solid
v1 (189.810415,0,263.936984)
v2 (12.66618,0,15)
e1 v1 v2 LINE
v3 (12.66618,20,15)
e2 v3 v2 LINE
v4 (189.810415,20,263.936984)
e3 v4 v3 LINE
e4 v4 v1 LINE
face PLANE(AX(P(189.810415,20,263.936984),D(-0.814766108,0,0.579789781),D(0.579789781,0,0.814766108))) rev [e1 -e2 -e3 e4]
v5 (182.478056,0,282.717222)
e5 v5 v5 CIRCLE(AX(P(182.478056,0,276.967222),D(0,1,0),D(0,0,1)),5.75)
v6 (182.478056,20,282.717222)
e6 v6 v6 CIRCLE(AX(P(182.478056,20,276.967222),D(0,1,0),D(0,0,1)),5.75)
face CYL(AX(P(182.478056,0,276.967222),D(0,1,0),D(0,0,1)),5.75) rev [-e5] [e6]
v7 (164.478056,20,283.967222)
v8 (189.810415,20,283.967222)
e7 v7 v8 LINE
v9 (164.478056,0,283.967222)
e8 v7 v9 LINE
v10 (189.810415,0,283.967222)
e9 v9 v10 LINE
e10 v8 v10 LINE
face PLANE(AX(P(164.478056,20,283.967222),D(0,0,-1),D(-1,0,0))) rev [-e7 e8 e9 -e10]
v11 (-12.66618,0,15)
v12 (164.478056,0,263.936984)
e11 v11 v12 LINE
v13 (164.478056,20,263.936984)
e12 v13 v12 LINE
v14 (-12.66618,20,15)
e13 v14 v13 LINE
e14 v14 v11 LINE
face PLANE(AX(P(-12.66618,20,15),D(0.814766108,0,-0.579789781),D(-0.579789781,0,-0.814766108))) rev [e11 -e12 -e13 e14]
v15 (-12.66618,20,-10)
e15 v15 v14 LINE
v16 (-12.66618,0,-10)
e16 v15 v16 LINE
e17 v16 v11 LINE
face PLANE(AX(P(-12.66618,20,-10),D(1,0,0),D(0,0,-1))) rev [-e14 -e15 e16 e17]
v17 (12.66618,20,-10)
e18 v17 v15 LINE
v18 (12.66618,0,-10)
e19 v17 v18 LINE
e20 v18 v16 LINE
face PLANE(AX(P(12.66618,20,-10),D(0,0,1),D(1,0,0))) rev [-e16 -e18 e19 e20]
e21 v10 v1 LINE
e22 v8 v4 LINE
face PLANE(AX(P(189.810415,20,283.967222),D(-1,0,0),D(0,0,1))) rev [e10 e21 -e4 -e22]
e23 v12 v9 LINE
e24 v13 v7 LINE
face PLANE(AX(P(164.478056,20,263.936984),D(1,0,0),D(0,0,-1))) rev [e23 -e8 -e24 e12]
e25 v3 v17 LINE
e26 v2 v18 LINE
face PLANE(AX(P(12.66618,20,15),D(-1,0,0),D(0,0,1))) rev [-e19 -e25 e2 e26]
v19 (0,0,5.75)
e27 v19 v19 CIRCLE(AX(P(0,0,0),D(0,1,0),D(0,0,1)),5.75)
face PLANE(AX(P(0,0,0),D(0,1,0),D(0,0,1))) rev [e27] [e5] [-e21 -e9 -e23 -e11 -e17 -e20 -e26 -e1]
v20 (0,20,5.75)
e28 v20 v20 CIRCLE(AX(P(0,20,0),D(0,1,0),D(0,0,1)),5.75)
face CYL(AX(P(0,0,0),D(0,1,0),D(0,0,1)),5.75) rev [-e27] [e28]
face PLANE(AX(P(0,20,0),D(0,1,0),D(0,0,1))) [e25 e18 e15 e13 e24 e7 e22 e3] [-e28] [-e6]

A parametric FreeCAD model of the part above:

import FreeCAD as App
import Part
import Sketcher
Q = App.Units.Quantity

doc = App.newDocument("Part")
params = doc.addObject("Spreadsheet::Sheet", "Params")
for row, (alias, value) in enumerate([
    ("sketch1_height", "25 mm"),
    ("pad1_length", "20 mm"),
    ("sketch2_diameter", "11.5 mm"),
], start=1):
    params.set(f"A{row}", alias)
    params.set(f"B{row}", "=" + value)
    params.setAlias(f"B{row}", alias)

body = doc.addObject("PartDesign::Body", "Body")

# Sketch on XZ plane
sketch1 = body.newObject("Sketcher::SketchObject", "Sketch")
sketch1.AttachmentSupport = (doc.getObject("XZ_Plane"), [""])
sketch1.MapMode = "FlatFace"
sketch1.addGeometry(Part.LineSegment(App.Vector(-13, -10, 0), App.Vector(-13, 15, 0)), False)
sketch1.addGeometry(Part.LineSegment(App.Vector(-13, 15, 0), App.Vector(164, 264, 0)), False)
sketch1.addGeometry(Part.LineSegment(App.Vector(164, 264, 0), App.Vector(164, 284, 0)), False)
sketch1.addGeometry(Part.LineSegment(App.Vector(164, 284, 0), App.Vector(190, 284, 0)), False)
sketch1.addGeometry(Part.LineSegment(App.Vector(190, 284, 0), App.Vector(190, 264, 0)), False)
sketch1.addGeometry(Part.LineSegment(App.Vector(190, 264, 0), App.Vector(13, 15, 0)), False)
sketch1.addGeometry(Part.LineSegment(App.Vector(13, 15, 0), App.Vector(13, -10, 0)), False)
sketch1.addGeometry(Part.LineSegment(App.Vector(13, -10, 0), App.Vector(-13, -10, 0)), False)
sketch1.addConstraint(Sketcher.Constraint("Coincident", 0, 2, 1, 1))
sketch1.addConstraint(Sketcher.Constraint("Coincident", 1, 2, 2, 1))
sketch1.addConstraint(Sketcher.Constraint("Coincident", 2, 2, 3, 1))
sketch1.addConstraint(Sketcher.Constraint("Coincident", 3, 2, 4, 1))
sketch1.addConstraint(Sketcher.Constraint("Coincident", 4, 2, 5, 1))
sketch1.addConstraint(Sketcher.Constraint("Coincident", 5, 2, 6, 1))
sketch1.addConstraint(Sketcher.Constraint("Coincident", 6, 2, 7, 1))
sketch1.addConstraint(Sketcher.Constraint("Coincident", 7, 2, 0, 1))
sketch1.addConstraint(Sketcher.Constraint("Vertical", 0))
sketch1.addConstraint(Sketcher.Constraint("Vertical", 2))
sketch1.addConstraint(Sketcher.Constraint("Horizontal", 3))
sketch1.addConstraint(Sketcher.Constraint("Vertical", 4))
sketch1.addConstraint(Sketcher.Constraint("Vertical", 6))
sketch1.addConstraint(Sketcher.Constraint("Horizontal", 7))
sketch1.addConstraint(Sketcher.Constraint("Symmetric", 0, 2, 5, 2, -2))
sketch1.addConstraint(Sketcher.Constraint("Parallel", 1, 5))
sketch1.addConstraint(Sketcher.Constraint("Horizontal", 1, 2, 4, 2))
sketch1.addConstraint(Sketcher.Constraint("DistanceY", 0, 1, 0, 2, Q("25 mm")))
sketch1.addConstraint(Sketcher.Constraint("DistanceY", -1, 1, 0, 2, Q("15 mm")))
sketch1.addConstraint(Sketcher.Constraint("DistanceX", 3, 1, 3, 2, Q("25.332359 mm")))
sketch1.addConstraint(Sketcher.Constraint("DistanceY", 2, 1, 2, 2, Q("20.030238 mm")))
sketch1.addConstraint(Sketcher.Constraint("DistanceY", -1, 1, 2, 2, Q("283.967222 mm")))
sketch1.addConstraint(Sketcher.Constraint("Distance", 1, Q("305.531835 mm")))
sketch1.setExpression("Constraints[17]", "Params.sketch1_height")
pad1 = body.newObject("PartDesign::Pad", "Pad")
pad1.Profile = sketch1
pad1.setExpression("Length", "Params.pad1_length")
pad1.Reversed = True

# Sketch on XZ plane
sketch2 = body.newObject("Sketcher::SketchObject", "Sketch001")
sketch2.AttachmentSupport = (doc.getObject("XZ_Plane"), [""])
sketch2.MapMode = "FlatFace"
sketch2.AttachmentOffset = App.Placement(App.Vector(0, 0, -20), App.Rotation())
sketch2.addGeometry(Part.Circle(App.Vector(0, 0, 0), App.Vector(0, 0, 1), 6), False)
sketch2.addGeometry(Part.Circle(App.Vector(182, 277, 0), App.Vector(0, 0, 1), 6), False)
sketch2.addConstraint(Sketcher.Constraint("Coincident", 0, 3, -1, 1))
sketch2.addConstraint(Sketcher.Constraint("Equal", 0, 1))
sketch2.addConstraint(Sketcher.Constraint("Diameter", 0, Q("11.5 mm")))
sketch2.addConstraint(Sketcher.Constraint("DistanceY", -1, 1, 1, 3, Q("276.967222 mm")))
sketch2.addConstraint(Sketcher.Constraint("DistanceX", -1, 1, 1, 3, Q("182.478056 mm")))
sketch2.setExpression("Constraints[2]", "Params.sketch2_diameter")
pocket1 = body.newObject("PartDesign::Pocket", "Pocket")
pocket1.Profile = sketch2
pocket1.Type = "ThroughAll"
pocket1.Reversed = True

doc.recompute()
